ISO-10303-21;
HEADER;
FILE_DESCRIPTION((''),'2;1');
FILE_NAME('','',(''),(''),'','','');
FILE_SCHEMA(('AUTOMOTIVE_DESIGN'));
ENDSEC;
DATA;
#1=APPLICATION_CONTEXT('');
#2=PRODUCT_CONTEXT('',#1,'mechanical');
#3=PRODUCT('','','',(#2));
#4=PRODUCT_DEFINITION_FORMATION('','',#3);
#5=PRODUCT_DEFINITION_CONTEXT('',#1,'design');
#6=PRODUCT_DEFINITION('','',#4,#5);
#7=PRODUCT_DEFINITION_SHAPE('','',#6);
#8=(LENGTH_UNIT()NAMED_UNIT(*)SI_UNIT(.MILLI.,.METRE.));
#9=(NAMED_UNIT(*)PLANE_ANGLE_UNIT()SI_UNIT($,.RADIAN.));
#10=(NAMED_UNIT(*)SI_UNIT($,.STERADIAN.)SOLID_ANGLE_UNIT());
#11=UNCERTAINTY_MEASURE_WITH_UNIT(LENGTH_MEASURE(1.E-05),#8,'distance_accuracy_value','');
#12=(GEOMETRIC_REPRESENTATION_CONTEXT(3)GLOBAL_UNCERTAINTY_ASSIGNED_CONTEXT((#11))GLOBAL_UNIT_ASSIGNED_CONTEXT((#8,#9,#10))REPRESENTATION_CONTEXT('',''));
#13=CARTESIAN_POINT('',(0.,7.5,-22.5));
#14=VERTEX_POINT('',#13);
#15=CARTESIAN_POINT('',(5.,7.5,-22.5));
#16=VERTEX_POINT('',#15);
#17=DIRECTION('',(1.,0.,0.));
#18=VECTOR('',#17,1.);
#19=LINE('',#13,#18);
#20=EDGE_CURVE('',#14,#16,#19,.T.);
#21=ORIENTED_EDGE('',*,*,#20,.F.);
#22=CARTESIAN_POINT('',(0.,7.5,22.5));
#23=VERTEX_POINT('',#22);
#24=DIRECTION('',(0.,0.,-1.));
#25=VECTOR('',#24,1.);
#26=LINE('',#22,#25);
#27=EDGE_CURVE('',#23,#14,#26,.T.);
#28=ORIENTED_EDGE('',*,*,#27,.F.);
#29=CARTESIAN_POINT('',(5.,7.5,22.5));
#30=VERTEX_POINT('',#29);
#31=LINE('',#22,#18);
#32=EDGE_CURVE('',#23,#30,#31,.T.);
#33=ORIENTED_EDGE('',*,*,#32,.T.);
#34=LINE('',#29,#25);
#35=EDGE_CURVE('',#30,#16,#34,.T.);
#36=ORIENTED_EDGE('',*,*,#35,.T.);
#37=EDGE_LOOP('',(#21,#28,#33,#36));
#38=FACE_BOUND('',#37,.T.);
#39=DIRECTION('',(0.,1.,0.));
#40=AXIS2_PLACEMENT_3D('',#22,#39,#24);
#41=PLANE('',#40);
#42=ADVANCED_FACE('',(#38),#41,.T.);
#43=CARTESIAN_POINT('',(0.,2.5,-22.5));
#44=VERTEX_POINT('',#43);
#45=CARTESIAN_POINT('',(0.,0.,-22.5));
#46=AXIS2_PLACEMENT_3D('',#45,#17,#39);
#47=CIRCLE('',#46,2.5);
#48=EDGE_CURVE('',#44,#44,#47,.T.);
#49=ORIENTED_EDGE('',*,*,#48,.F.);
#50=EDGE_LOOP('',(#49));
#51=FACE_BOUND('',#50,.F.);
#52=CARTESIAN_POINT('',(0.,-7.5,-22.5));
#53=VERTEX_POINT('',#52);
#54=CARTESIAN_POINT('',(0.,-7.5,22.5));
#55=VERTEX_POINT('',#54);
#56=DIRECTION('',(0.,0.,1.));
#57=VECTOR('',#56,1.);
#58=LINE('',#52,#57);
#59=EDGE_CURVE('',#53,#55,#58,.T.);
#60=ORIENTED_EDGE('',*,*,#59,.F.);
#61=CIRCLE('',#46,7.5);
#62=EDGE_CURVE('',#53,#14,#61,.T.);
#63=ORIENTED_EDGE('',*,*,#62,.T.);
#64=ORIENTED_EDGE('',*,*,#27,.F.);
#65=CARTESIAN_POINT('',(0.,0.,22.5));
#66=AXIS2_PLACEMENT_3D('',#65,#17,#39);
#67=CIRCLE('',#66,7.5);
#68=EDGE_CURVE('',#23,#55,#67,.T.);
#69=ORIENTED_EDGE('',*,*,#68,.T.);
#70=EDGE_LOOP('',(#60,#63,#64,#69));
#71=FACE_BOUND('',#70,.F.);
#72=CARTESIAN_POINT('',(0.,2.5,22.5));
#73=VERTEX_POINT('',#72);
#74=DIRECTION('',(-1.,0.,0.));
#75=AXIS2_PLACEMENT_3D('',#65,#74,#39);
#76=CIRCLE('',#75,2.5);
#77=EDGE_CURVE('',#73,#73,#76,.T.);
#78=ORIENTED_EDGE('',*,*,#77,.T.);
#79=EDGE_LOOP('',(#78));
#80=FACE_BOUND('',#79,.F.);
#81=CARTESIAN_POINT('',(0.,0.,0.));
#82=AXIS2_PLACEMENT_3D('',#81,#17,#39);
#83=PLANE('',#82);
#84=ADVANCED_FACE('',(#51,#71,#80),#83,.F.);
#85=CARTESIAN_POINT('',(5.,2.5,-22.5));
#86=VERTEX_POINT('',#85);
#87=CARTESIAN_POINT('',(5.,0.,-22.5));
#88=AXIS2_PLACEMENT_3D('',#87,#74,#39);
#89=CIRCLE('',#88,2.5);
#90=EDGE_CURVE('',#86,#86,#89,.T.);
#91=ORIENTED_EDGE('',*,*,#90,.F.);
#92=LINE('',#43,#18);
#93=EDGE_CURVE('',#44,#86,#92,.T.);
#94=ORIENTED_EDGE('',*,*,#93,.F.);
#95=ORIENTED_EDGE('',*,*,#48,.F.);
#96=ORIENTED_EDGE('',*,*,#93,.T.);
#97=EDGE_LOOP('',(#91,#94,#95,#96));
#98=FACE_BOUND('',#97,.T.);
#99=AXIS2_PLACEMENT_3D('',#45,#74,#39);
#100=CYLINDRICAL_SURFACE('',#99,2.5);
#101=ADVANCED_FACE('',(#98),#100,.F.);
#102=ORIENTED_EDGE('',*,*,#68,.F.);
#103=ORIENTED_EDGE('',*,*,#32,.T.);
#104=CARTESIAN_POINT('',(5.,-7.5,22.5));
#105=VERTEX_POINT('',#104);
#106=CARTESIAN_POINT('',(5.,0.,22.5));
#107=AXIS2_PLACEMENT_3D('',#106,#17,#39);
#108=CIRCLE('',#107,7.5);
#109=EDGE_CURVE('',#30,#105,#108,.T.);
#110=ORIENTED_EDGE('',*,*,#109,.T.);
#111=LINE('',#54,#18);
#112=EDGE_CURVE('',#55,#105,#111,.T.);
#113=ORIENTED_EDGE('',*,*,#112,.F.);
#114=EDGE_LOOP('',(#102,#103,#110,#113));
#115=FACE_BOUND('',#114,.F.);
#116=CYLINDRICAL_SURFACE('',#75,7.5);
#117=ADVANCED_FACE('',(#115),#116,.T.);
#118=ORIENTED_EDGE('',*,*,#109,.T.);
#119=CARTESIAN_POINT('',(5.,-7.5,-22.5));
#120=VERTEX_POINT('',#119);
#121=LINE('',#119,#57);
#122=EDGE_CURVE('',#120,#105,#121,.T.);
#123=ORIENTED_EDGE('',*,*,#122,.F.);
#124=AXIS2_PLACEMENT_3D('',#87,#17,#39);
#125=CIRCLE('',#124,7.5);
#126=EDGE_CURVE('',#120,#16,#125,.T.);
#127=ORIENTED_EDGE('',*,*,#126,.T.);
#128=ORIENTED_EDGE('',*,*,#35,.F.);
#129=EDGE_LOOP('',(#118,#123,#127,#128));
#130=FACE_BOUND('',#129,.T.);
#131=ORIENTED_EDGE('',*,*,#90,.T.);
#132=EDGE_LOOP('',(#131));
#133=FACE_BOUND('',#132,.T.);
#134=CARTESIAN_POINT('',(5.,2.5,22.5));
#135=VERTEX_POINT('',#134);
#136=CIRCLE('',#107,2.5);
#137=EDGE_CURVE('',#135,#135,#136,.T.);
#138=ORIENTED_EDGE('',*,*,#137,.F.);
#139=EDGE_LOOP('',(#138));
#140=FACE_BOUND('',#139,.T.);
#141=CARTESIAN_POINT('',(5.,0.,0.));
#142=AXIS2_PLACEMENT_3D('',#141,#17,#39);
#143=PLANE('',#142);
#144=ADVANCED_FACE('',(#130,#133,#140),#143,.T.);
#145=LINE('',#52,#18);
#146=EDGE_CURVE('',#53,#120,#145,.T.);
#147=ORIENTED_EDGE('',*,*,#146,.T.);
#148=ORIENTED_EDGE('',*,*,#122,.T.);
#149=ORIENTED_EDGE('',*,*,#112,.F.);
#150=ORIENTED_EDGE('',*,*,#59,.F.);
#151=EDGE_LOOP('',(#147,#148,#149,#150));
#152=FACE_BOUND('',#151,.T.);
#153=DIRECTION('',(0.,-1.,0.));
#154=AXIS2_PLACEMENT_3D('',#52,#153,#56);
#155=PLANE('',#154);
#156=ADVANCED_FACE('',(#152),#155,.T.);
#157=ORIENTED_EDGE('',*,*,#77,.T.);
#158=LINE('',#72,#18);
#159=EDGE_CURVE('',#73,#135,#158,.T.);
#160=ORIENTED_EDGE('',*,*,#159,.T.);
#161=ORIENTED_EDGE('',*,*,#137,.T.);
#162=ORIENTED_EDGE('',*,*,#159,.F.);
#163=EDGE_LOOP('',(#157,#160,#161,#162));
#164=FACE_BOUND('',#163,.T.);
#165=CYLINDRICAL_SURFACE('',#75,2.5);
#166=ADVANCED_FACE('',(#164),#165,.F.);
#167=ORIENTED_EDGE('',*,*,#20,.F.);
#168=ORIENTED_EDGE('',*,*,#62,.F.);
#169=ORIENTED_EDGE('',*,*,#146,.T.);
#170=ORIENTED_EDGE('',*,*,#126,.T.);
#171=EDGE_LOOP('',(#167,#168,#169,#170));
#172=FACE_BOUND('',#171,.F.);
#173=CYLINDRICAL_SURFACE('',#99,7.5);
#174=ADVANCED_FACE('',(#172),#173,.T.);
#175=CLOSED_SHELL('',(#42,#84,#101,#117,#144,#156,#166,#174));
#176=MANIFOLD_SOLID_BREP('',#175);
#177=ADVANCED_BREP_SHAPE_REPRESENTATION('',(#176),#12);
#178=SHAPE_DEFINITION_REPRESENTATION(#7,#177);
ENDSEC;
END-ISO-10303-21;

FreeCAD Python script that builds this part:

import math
import FreeCAD as App
import Part
import Sketcher

V = App.Vector
Q = App.Units.Quantity

doc = App.newDocument("Part")
body = doc.addObject("PartDesign::Body", "Body")

# Sketch on YZ plane
sketch1 = body.newObject("Sketcher::SketchObject", "Sketch")
sketch1.AttachmentSupport = (doc.getObject("YZ_Plane"), [""])
sketch1.MapMode = "FlatFace"
sketch1.addGeometry([
    Part.ArcOfCircle(Part.Circle(V(0, 22.5, 0), V(0, 0, 1), 7.5), math.radians(0), math.radians(180)),  # 0
    Part.LineSegment(V(-7.5, 22.5, 0), V(-7.5, -22.5, 0)),  # 1
    Part.ArcOfCircle(Part.Circle(V(0, -22.5, 0), V(0, 0, 1), 7.5), math.radians(180), math.radians(360)),  # 2
    Part.LineSegment(V(7.5, -22.5, 0), V(7.5, 22.5, 0)),  # 3
    Part.Circle(V(0, 22.5, 0), V(0, 0, 1), 2.5),  # 4
    Part.Circle(V(0, -22.5, 0), V(0, 0, 1), 2.5),  # 5
], False)
sketch1.addConstraint([
    Sketcher.Constraint("Tangent", 0, 2, 1, 1),
    Sketcher.Constraint("Tangent", 1, 2, 2, 1),
    Sketcher.Constraint("Tangent", 2, 2, 3, 1),
    Sketcher.Constraint("Tangent", 3, 2, 0, 1),
    Sketcher.Constraint("Vertical", 1),
    Sketcher.Constraint("Vertical", 3),
    Sketcher.Constraint("Coincident", 4, 3, 0, 3),
    Sketcher.Constraint("Coincident", 5, 3, 2, 3),
    Sketcher.Constraint("Equal", 4, 5),
    Sketcher.Constraint("Symmetric", 0, 3, 2, 3, -1, 1),
    Sketcher.Constraint("Diameter", 4, Q("5 mm")),
    Sketcher.Constraint("Radius", 0, Q("7.5 mm")),
    Sketcher.Constraint("DistanceY", 1, 2, 1, 1, Q("45 mm")),
])
pad1 = body.newObject("PartDesign::Pad", "Pad")
pad1.Profile = sketch1
pad1.Length = 5

doc.recompute()
